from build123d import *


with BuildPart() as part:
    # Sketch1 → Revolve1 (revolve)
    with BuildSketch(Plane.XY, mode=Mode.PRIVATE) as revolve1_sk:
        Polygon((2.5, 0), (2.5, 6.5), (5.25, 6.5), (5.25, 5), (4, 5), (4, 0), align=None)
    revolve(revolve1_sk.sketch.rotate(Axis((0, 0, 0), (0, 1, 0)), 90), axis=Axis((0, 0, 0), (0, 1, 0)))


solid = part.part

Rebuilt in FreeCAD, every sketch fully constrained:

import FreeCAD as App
import Part
import Sketcher

V = App.Vector
Q = App.Units.Quantity

doc = App.newDocument("Part")
body = doc.addObject("PartDesign::Body", "Body")

sketch1 = doc.addObject("Sketcher::SketchObject", "Sketch")
body.addObject(sketch1)
sketch1.AttachmentSupport = (doc.XY_Plane, [""])
sketch1.MapMode = "FlatFace"
sketch1.addGeometry(Part.LineSegment(V(2.5, 6.5, 0), V(2.5, 0, 0)), False)
sketch1.addGeometry(Part.LineSegment(V(2.5, 0, 0), V(4, 0, 0)), False)
sketch1.addGeometry(Part.LineSegment(V(4, 0, 0), V(4, 5, 0)), False)
sketch1.addGeometry(Part.LineSegment(V(4, 5, 0), V(5.2, 5, 0)), False)
sketch1.addGeometry(Part.LineSegment(V(5.2, 5, 0), V(5.2, 6.5, 0)), False)
sketch1.addGeometry(Part.LineSegment(V(5.2, 6.5, 0), V(2.5, 6.5, 0)), False)
sketch1.addConstraint(Sketcher.Constraint("Coincident", 0, 2, 1, 1))
sketch1.addConstraint(Sketcher.Constraint("Coincident", 1, 2, 2, 1))
sketch1.addConstraint(Sketcher.Constraint("Coincident", 2, 2, 3, 1))
sketch1.addConstraint(Sketcher.Constraint("Coincident", 3, 2, 4, 1))
sketch1.addConstraint(Sketcher.Constraint("Coincident", 4, 2, 5, 1))
sketch1.addConstraint(Sketcher.Constraint("Coincident", 5, 2, 0, 1))
sketch1.addConstraint(Sketcher.Constraint("Vertical", 0))
sketch1.addConstraint(Sketcher.Constraint("Horizontal", 1))
sketch1.addConstraint(Sketcher.Constraint("Vertical", 2))
sketch1.addConstraint(Sketcher.Constraint("Horizontal", 3))
sketch1.addConstraint(Sketcher.Constraint("Vertical", 4))
sketch1.addConstraint(Sketcher.Constraint("Horizontal", 5))
sketch1.addConstraint(Sketcher.Constraint("PointOnObject", 0, 2, -1))
sketch1.addConstraint(Sketcher.Constraint("Equal", 1, 4))
sketch1.addConstraint(Sketcher.Constraint("DistanceY", 2, 1, 2, 2, Q("5 mm")))
sketch1.addConstraint(Sketcher.Constraint("DistanceX", 1, 1, 1, 2, Q("1.5 mm")))
sketch1.addConstraint(Sketcher.Constraint("DistanceX", -1, 1, 1, 2, Q("4 mm")))
sketch1.addConstraint(Sketcher.Constraint("DistanceX", 3, 1, 3, 2, Q("1.25 mm")))
revolution = doc.addObject("PartDesign::Revolution", "Revolution")
body.addObject(revolution)
revolution.Profile = sketch1
revolution.ReferenceAxis = (sketch1, ["V_Axis"])
revolution.Angle = 360

doc.recompute()
